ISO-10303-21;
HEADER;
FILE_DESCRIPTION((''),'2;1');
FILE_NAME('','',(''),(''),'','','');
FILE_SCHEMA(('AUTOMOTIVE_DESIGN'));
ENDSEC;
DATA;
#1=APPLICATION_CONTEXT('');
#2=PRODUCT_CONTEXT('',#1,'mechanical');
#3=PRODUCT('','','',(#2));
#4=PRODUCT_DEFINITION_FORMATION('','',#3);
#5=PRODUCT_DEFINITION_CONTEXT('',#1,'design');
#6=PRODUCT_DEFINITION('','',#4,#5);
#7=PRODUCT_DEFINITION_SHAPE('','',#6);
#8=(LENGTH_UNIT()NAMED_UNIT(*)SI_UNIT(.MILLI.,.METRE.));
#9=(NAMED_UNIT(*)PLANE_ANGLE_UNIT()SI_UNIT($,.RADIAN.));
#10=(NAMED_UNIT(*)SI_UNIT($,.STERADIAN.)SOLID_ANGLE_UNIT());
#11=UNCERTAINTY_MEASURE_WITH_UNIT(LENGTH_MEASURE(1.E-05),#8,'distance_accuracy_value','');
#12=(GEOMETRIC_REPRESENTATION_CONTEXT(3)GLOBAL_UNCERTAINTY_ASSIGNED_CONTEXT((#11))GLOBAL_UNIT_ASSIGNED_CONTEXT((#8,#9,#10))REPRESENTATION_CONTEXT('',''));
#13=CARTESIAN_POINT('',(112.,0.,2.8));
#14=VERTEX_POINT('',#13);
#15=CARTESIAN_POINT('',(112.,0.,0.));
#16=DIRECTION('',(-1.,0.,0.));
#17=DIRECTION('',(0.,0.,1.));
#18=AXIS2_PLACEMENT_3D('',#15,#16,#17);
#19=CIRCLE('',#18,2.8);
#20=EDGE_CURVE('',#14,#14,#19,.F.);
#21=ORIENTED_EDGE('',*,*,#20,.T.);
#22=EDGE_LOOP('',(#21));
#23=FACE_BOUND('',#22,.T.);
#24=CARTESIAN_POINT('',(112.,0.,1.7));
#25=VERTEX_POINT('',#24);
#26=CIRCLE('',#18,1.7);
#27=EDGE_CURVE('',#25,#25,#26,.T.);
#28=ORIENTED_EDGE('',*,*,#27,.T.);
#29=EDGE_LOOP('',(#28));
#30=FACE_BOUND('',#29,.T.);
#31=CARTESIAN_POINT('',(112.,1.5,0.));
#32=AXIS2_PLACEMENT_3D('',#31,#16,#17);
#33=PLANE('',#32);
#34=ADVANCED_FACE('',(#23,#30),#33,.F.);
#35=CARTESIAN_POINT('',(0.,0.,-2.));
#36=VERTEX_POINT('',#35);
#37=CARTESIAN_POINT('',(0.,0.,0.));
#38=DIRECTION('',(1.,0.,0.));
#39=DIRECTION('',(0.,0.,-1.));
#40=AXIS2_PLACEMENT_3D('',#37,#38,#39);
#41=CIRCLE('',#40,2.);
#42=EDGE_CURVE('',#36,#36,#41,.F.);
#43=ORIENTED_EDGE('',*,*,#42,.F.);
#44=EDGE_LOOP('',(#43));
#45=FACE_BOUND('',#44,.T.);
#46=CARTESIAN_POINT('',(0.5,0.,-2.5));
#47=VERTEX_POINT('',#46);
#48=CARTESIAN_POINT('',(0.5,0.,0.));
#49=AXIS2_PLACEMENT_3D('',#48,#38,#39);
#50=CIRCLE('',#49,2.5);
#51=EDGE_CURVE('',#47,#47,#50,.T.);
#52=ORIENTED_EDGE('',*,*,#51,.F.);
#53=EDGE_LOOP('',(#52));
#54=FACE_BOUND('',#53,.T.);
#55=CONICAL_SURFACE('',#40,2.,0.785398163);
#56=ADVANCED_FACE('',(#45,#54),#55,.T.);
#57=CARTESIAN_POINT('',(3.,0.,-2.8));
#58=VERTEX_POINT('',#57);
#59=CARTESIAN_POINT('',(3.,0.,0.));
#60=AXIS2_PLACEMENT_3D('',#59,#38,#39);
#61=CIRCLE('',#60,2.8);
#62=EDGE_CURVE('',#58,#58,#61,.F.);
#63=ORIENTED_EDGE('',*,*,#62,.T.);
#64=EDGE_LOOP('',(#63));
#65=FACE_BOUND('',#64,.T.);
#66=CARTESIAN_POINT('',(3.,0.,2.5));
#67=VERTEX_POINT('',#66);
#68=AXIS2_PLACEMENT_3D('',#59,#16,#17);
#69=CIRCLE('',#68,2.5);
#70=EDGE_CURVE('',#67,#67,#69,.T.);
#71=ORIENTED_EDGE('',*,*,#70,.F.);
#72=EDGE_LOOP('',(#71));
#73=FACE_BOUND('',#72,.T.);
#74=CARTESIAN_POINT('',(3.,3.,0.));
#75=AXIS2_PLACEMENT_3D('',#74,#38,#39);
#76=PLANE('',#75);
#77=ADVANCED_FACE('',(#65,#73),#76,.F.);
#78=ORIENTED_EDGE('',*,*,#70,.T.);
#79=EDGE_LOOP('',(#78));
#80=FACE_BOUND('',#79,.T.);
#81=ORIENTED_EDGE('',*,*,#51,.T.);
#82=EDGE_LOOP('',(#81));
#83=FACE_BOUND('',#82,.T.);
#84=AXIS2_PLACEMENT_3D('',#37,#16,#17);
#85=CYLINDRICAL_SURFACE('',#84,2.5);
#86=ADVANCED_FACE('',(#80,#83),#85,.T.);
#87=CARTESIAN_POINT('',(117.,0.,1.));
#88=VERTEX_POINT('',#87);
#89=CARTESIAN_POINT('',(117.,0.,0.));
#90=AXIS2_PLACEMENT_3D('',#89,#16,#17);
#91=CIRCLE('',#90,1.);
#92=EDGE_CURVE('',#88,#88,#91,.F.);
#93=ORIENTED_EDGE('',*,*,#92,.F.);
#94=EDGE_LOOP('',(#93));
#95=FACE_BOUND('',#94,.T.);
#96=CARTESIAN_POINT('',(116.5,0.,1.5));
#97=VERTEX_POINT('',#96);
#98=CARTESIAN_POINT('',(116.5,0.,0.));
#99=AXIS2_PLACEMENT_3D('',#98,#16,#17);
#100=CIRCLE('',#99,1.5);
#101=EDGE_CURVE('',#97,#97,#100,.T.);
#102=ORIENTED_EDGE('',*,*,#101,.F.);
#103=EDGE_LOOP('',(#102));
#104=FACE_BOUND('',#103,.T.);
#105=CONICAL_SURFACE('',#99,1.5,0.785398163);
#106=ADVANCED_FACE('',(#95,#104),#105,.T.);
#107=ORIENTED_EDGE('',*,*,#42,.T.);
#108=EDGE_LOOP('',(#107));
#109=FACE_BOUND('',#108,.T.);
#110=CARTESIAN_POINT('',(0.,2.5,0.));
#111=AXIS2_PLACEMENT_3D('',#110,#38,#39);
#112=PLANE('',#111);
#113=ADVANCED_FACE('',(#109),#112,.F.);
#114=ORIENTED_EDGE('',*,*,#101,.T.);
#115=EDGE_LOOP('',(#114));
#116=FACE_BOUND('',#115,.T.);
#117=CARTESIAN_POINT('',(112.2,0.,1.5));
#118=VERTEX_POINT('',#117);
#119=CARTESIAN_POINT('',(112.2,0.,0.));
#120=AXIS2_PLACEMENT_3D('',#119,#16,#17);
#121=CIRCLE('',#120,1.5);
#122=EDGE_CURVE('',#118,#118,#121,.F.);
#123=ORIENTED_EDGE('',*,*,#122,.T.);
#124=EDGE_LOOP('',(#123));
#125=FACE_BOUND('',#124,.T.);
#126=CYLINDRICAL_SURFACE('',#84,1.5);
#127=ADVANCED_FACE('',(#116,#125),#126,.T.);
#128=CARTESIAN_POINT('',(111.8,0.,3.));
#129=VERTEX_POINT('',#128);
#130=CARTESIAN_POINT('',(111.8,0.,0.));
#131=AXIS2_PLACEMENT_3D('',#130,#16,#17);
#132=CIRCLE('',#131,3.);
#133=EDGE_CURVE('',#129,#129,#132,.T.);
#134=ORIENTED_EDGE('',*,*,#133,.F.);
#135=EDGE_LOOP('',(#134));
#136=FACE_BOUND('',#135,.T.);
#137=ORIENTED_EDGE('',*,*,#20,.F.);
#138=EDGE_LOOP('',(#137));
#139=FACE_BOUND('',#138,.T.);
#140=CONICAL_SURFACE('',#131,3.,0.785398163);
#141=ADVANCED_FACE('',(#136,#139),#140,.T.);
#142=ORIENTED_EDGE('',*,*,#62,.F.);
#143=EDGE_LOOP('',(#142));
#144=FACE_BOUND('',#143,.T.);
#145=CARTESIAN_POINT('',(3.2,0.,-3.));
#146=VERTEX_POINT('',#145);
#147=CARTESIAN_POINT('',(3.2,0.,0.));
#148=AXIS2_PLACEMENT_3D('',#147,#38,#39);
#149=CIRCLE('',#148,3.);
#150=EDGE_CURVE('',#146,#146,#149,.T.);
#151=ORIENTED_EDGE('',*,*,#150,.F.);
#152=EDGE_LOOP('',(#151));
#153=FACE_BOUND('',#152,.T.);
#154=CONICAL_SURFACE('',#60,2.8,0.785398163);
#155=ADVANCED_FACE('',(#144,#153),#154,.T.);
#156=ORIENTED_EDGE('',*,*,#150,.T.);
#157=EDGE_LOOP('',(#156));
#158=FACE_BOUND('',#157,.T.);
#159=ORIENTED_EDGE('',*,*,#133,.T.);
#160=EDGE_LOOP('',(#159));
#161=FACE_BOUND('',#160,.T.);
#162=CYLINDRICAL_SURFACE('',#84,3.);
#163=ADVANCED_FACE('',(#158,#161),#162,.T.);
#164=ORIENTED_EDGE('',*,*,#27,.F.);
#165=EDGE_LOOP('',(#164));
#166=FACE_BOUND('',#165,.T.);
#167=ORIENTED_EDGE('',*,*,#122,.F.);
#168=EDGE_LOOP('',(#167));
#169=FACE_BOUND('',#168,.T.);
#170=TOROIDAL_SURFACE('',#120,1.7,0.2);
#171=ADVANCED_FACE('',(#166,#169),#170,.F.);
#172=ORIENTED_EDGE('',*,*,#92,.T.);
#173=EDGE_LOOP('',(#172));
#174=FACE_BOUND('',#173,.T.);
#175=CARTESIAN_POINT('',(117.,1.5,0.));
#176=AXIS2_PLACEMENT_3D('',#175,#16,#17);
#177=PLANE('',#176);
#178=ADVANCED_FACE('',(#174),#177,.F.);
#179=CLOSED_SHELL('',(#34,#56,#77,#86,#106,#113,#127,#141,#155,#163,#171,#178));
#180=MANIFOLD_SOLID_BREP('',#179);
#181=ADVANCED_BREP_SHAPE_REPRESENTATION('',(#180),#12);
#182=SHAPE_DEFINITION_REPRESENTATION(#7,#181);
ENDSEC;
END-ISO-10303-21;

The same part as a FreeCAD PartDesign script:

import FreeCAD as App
import Part
import Sketcher

V = App.Vector


def edges_at(feature, points):
    """Names of the edges that pass closest to the given points."""
    edges = feature.Shape.Edges
    near = lambda p: min(range(len(edges)), key=lambda i: edges[i].distToShape(Part.Vertex(*p))[0])
    return sorted({f"Edge{near(p) + 1}" for p in points})

doc = App.newDocument("Part")
body = doc.addObject("PartDesign::Body", "Body")

# Sketch on XY plane
sketch1 = doc.addObject("Sketcher::SketchObject", "Sketch")
body.addObject(sketch1)
sketch1.AttachmentSupport = (doc.XY_Plane, [""])
sketch1.MapMode = "FlatFace"
sketch1.addGeometry([
    Part.LineSegment(V(0, 0, 0), V(117, 0, 0)),  # 0
    Part.LineSegment(V(117, 0, 0), V(117, 1.5, 0)),  # 1
    Part.LineSegment(V(117, 1.5, 0), V(112, 1.5, 0)),  # 2
    Part.LineSegment(V(112, 1.5, 0), V(112, 3, 0)),  # 3
    Part.LineSegment(V(112, 3, 0), V(3, 3, 0)),  # 4
    Part.LineSegment(V(3, 3, 0), V(3, 2.5, 0)),  # 5
    Part.LineSegment(V(3, 2.5, 0), V(0, 2.5, 0)),  # 6
    Part.LineSegment(V(0, 2.5, 0), V(0, 0, 0)),  # 7
], False)
sketch1.addConstraint([
    Sketcher.Constraint("Coincident", 0, 2, 1, 1),
    Sketcher.Constraint("Coincident", 1, 2, 2, 1),
    Sketcher.Constraint("Coincident", 2, 2, 3, 1),
    Sketcher.Constraint("Coincident", 3, 2, 4, 1),
    Sketcher.Constraint("Coincident", 4, 2, 5, 1),
    Sketcher.Constraint("Coincident", 5, 2, 6, 1),
    Sketcher.Constraint("Coincident", 6, 2, 7, 1),
    Sketcher.Constraint("Coincident", 7, 2, 0, 1),
    Sketcher.Constraint("Horizontal", 0),
    Sketcher.Constraint("Vertical", 1),
    Sketcher.Constraint("Horizontal", 2),
    Sketcher.Constraint("Vertical", 3),
    Sketcher.Constraint("Horizontal", 4),
    Sketcher.Constraint("Vertical", 5),
    Sketcher.Constraint("Horizontal", 6),
    Sketcher.Constraint("Vertical", 7),
    Sketcher.Constraint("Coincident", 7, 2, -1, 1),
    Sketcher.Constraint("Equal", 1, 3),
    Sketcher.Constraint("DistanceX", 0, 1, 0, 2, 117.0),
    Sketcher.Constraint("DistanceX", 2, 2, 2, 1, 5.0),
    Sketcher.Constraint("DistanceX", 4, 2, 4, 1, 109.0),
    Sketcher.Constraint("DistanceY", 1, 1, 1, 2, 1.5),
    Sketcher.Constraint("DistanceY", 5, 2, 5, 1, 0.5),
])
revolution = doc.addObject("PartDesign::Revolution", "Revolution")
body.addObject(revolution)
revolution.Profile = sketch1
revolution.ReferenceAxis = (sketch1, ["H_Axis"])
revolution.Angle = 360
doc.recompute()

chamfer = doc.addObject("PartDesign::Chamfer", "Chamfer")
body.addObject(chamfer)
chamfer.Base = (revolution, edges_at(revolution, [(112, 0, -3)]))
chamfer.Size = 0.2
doc.recompute()

chamfer2 = doc.addObject("PartDesign::Chamfer", "Chamfer001")
body.addObject(chamfer2)
chamfer2.Base = (chamfer, edges_at(chamfer, [(3, 0, -3)]))
chamfer2.Size = 0.2
doc.recompute()

chamfer3 = doc.addObject("PartDesign::Chamfer", "Chamfer002")
body.addObject(chamfer3)
chamfer3.Base = (chamfer2, edges_at(chamfer2, [(0, 0, -2.5)]))
chamfer3.Size = 0.5
doc.recompute()

chamfer4 = doc.addObject("PartDesign::Chamfer", "Chamfer003")
body.addObject(chamfer4)
chamfer4.Base = (chamfer3, edges_at(chamfer3, [(117, 0, -1.5)]))
chamfer4.Size = 0.5
doc.recompute()

fillet = doc.addObject("PartDesign::Fillet", "Fillet")
body.addObject(fillet)
fillet.Base = (chamfer4, edges_at(chamfer4, [(112, 0, -1.5)]))
fillet.Radius = 0.2

doc.recompute()
